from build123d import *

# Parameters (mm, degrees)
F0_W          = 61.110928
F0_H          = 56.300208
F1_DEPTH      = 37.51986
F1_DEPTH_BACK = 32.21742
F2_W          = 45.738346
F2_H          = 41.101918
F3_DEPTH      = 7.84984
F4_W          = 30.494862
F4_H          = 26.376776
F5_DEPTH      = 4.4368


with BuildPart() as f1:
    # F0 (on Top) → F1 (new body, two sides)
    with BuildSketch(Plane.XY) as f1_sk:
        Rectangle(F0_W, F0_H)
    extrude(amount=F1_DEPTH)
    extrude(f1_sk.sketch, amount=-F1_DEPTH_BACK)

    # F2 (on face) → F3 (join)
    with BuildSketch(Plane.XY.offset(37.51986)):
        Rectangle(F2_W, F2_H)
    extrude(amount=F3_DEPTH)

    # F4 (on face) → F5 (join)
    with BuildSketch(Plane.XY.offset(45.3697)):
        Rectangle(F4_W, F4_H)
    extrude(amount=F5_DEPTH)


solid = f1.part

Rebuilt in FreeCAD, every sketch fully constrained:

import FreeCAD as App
import Part
import Sketcher

V = App.Vector
Q = App.Units.Quantity


def add_polygon(sketch, points):
    """Adds a closed chain of lines whose ends are joined by coincident constraints."""
    first, n = sketch.GeometryCount, len(points)
    for a, b in zip(points, points[1:] + points[:1]):
        sketch.addGeometry(Part.LineSegment(App.Vector(*a, 0), App.Vector(*b, 0)), False)
    for i in range(n):
        sketch.addConstraint(Sketcher.Constraint("Coincident", first + i, 2, first + (i + 1) % n, 1))

doc = App.newDocument("Part")
body = doc.addObject("PartDesign::Body", "Body")

# Sketch on XY plane
sketch1 = body.newObject("Sketcher::SketchObject", "Sketch")
sketch1.AttachmentSupport = (doc.getObject("XY_Plane"), [""])
sketch1.MapMode = "FlatFace"
add_polygon(sketch1, [(-31, 28), (-31, -28), (31, -28), (31, 28)])  # lines 0-3
sketch1.addConstraint(Sketcher.Constraint("Vertical", 0))
sketch1.addConstraint(Sketcher.Constraint("Horizontal", 1))
sketch1.addConstraint(Sketcher.Constraint("Vertical", 2))
sketch1.addConstraint(Sketcher.Constraint("Horizontal", 3))
sketch1.addConstraint(Sketcher.Constraint("Symmetric", 0, 2, 2, 2, -1, 1))
sketch1.addConstraint(Sketcher.Constraint("DistanceX", 1, 1, 1, 2, Q("61.110928 mm")))
sketch1.addConstraint(Sketcher.Constraint("DistanceY", 0, 2, 0, 1, Q("56.300208 mm")))
pad1 = body.newObject("PartDesign::Pad", "Pad")
pad1.Profile = sketch1
pad1.Type = "TwoLengths"
pad1.Length = 37.51986
pad1.Length2 = 32.21742

# Sketch on XY plane
sketch2 = body.newObject("Sketcher::SketchObject", "Sketch001")
sketch2.AttachmentSupport = (doc.getObject("XY_Plane"), [""])
sketch2.MapMode = "FlatFace"
sketch2.AttachmentOffset = App.Placement(V(0, 0, 37.51986), App.Rotation())
add_polygon(sketch2, [(-23, 21), (-23, -21), (23, -21), (23, 21)])  # lines 0-3
sketch2.addConstraint(Sketcher.Constraint("Vertical", 0))
sketch2.addConstraint(Sketcher.Constraint("Horizontal", 1))
sketch2.addConstraint(Sketcher.Constraint("Vertical", 2))
sketch2.addConstraint(Sketcher.Constraint("Horizontal", 3))
sketch2.addConstraint(Sketcher.Constraint("Symmetric", 0, 2, 2, 2, -1, 1))
sketch2.addConstraint(Sketcher.Constraint("DistanceX", 1, 1, 1, 2, Q("45.738346 mm")))
sketch2.addConstraint(Sketcher.Constraint("DistanceY", 0, 2, 0, 1, Q("41.101918 mm")))
pad2 = body.newObject("PartDesign::Pad", "Pad001")
pad2.Profile = sketch2
pad2.Length = 7.84984

# Sketch on XY plane
sketch3 = body.newObject("Sketcher::SketchObject", "Sketch002")
sketch3.AttachmentSupport = (doc.getObject("XY_Plane"), [""])
sketch3.MapMode = "FlatFace"
sketch3.AttachmentOffset = App.Placement(V(0, 0, 45.3697), App.Rotation())
add_polygon(sketch3, [(-15, 13), (-15, -13), (15, -13), (15, 13)])  # lines 0-3
sketch3.addConstraint(Sketcher.Constraint("Vertical", 0))
sketch3.addConstraint(Sketcher.Constraint("Horizontal", 1))
sketch3.addConstraint(Sketcher.Constraint("Vertical", 2))
sketch3.addConstraint(Sketcher.Constraint("Horizontal", 3))
sketch3.addConstraint(Sketcher.Constraint("Symmetric", 0, 2, 2, 2, -1, 1))
sketch3.addConstraint(Sketcher.Constraint("DistanceX", 1, 1, 1, 2, Q("30.494862 mm")))
sketch3.addConstraint(Sketcher.Constraint("DistanceY", 0, 2, 0, 1, Q("26.376776 mm")))
pad3 = body.newObject("PartDesign::Pad", "Pad002")
pad3.Profile = sketch3
pad3.Length = 4.4368

doc.recompute()
